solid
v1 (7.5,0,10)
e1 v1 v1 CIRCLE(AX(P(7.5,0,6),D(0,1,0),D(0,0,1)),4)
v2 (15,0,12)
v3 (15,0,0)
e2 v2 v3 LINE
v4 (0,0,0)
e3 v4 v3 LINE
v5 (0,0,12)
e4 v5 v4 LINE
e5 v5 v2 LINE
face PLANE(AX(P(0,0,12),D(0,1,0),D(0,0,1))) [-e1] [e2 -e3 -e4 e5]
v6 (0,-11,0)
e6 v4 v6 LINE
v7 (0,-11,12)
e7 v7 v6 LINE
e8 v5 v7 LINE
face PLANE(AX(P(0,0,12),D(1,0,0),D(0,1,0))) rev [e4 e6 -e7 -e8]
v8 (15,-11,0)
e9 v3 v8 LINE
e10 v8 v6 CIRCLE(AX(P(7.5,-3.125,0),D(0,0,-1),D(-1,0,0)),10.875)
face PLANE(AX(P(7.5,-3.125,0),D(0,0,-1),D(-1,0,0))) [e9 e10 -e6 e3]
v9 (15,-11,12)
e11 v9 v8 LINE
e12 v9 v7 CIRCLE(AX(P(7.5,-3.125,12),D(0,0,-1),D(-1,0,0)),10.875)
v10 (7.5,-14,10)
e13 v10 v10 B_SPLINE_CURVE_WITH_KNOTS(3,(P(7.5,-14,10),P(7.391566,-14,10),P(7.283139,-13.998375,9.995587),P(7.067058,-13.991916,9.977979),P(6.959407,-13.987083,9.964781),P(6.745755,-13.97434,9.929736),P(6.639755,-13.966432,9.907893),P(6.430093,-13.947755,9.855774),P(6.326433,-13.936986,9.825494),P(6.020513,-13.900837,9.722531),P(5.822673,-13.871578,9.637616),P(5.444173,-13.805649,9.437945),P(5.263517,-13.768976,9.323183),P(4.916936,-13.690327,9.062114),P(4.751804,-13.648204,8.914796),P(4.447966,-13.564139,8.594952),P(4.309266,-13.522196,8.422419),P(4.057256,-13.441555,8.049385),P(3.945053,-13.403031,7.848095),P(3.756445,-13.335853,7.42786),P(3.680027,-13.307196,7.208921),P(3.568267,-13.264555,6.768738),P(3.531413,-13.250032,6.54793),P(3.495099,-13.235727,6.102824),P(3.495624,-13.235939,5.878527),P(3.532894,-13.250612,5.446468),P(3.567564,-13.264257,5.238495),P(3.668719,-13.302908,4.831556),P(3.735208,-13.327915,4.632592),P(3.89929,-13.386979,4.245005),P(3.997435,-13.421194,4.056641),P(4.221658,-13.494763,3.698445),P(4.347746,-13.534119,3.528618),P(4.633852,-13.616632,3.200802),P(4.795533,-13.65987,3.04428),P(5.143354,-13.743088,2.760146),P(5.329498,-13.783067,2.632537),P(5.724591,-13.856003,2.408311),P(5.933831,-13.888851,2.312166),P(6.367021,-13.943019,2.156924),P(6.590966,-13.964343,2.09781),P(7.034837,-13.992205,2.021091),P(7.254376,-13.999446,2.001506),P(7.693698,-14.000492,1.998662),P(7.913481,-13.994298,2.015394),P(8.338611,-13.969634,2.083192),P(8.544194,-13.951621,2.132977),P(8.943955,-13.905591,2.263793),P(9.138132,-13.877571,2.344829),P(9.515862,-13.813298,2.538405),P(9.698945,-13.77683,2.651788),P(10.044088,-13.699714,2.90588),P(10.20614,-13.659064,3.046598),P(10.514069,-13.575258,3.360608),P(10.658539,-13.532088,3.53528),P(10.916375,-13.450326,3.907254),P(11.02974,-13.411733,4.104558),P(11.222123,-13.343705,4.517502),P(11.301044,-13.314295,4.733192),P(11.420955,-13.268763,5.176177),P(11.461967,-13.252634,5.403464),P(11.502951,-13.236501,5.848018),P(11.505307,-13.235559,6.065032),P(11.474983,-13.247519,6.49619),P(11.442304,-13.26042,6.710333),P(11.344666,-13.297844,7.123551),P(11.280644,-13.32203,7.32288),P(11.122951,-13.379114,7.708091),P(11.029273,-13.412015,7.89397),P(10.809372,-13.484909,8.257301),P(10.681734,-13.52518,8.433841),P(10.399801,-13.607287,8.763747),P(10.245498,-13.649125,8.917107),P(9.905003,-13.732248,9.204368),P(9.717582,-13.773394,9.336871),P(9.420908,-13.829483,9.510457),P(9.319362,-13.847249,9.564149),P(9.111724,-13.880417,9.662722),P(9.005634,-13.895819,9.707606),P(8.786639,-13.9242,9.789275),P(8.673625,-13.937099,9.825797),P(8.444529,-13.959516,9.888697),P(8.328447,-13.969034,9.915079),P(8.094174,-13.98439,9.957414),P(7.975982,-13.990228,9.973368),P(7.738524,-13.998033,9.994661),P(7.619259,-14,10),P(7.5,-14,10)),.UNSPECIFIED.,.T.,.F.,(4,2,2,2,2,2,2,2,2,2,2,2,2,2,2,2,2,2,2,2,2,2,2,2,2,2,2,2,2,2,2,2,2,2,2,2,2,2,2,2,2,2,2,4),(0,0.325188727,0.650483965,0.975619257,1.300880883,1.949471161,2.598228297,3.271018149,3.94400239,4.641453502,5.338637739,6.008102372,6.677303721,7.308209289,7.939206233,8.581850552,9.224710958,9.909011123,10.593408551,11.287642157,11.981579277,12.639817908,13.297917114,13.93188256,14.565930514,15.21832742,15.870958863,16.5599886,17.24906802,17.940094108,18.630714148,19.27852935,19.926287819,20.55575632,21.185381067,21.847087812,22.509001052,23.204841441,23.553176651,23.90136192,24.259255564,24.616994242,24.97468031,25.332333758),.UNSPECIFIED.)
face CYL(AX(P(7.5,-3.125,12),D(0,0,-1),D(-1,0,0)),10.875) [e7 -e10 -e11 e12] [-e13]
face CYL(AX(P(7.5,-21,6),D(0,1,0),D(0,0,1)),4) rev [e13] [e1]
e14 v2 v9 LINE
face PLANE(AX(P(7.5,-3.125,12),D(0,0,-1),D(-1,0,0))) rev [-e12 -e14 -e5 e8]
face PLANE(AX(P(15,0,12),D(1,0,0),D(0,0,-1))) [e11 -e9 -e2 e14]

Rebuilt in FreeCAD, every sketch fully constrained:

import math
import FreeCAD as App
import Part
import Sketcher
from FreeCAD import Vector
Q = App.Units.Quantity

doc = App.newDocument("Part")
params = doc.addObject("Spreadsheet::Sheet", "Params")
for row, (alias, value) in enumerate([
    ("sketch1_width", "15 mm"),
    ("sketch1_height", "11 mm"),
    ("pad1_length", "12 mm"),
    ("sketch2_diameter", "8 mm"),
    ("pocket1_length", "21 mm"),
], start=1):
    params.set(f"A{row}", alias)
    params.set(f"B{row}", "=" + value)
    params.setAlias(f"B{row}", alias)

body = doc.addObject("PartDesign::Body", "Body")

# Sketch on XY plane
sketch1 = body.newObject("Sketcher::SketchObject", "Sketch")
sketch1.AttachmentSupport = (doc.getObject("XY_Plane"), [""])
sketch1.MapMode = "FlatFace"
sketch1.addGeometry([
    Part.LineSegment(Vector(15, 0, 0), Vector(0, 0, 0)),
    Part.LineSegment(Vector(0, 0, 0), Vector(0, -11, 0)),
    Part.ArcOfCircle(Part.Circle(Vector(7.5, -3.125, 0), Vector(0, 0, 1), 10.875), math.radians(-133.602819), math.radians(-46.397181)),
    Part.LineSegment(Vector(15, -11, 0), Vector(15, 0, 0)),
], False)
sketch1.addConstraint([
    Sketcher.Constraint("Coincident", 0, 2, 1, 1),
    Sketcher.Constraint("Coincident", 1, 2, 2, 1),
    Sketcher.Constraint("Coincident", 2, 2, 3, 1),
    Sketcher.Constraint("Coincident", 3, 2, 0, 1),
    Sketcher.Constraint("Horizontal", 0),
    Sketcher.Constraint("Vertical", 1),
    Sketcher.Constraint("Vertical", 3),
    Sketcher.Constraint("Coincident", 0, 2, -1, 1),
    Sketcher.Constraint("Horizontal", 1, 2, 2, 2),
    Sketcher.Constraint("DistanceX", 0, 2, 0, 1, Q("15 mm")),
    Sketcher.Constraint("DistanceY", 1, 2, 1, 1, Q("11 mm")),
    Sketcher.Constraint("Radius", 2, Q("10.875 mm")),
])
sketch1.setExpression("Constraints[9]", "Params.sketch1_width")
sketch1.setExpression("Constraints[10]", "Params.sketch1_height")
pad1 = body.newObject("PartDesign::Pad", "Pad")
pad1.Profile = sketch1
pad1.setExpression("Length", "Params.pad1_length")

# Sketch on XZ plane
sketch2 = body.newObject("Sketcher::SketchObject", "Sketch001")
sketch2.AttachmentSupport = (doc.getObject("XZ_Plane"), [""])
sketch2.MapMode = "FlatFace"
sketch2.addGeometry(Part.Circle(Vector(7.5, 6, 0), Vector(0, 0, 1), 4), False)
sketch2.addConstraint([
    Sketcher.Constraint("Diameter", 0, Q("8 mm")),
    Sketcher.Constraint("DistanceY", -1, 1, 0, 3, Q("6 mm")),
    Sketcher.Constraint("DistanceX", -1, 1, 0, 3, Q("7.5 mm")),
])
sketch2.setExpression("Constraints[0]", "Params.sketch2_diameter")
pocket1 = body.newObject("PartDesign::Pocket", "Pocket")
pocket1.Profile = sketch2
pocket1.setExpression("Length", "Params.pocket1_length")
pocket1.Reversed = True

doc.recompute()
